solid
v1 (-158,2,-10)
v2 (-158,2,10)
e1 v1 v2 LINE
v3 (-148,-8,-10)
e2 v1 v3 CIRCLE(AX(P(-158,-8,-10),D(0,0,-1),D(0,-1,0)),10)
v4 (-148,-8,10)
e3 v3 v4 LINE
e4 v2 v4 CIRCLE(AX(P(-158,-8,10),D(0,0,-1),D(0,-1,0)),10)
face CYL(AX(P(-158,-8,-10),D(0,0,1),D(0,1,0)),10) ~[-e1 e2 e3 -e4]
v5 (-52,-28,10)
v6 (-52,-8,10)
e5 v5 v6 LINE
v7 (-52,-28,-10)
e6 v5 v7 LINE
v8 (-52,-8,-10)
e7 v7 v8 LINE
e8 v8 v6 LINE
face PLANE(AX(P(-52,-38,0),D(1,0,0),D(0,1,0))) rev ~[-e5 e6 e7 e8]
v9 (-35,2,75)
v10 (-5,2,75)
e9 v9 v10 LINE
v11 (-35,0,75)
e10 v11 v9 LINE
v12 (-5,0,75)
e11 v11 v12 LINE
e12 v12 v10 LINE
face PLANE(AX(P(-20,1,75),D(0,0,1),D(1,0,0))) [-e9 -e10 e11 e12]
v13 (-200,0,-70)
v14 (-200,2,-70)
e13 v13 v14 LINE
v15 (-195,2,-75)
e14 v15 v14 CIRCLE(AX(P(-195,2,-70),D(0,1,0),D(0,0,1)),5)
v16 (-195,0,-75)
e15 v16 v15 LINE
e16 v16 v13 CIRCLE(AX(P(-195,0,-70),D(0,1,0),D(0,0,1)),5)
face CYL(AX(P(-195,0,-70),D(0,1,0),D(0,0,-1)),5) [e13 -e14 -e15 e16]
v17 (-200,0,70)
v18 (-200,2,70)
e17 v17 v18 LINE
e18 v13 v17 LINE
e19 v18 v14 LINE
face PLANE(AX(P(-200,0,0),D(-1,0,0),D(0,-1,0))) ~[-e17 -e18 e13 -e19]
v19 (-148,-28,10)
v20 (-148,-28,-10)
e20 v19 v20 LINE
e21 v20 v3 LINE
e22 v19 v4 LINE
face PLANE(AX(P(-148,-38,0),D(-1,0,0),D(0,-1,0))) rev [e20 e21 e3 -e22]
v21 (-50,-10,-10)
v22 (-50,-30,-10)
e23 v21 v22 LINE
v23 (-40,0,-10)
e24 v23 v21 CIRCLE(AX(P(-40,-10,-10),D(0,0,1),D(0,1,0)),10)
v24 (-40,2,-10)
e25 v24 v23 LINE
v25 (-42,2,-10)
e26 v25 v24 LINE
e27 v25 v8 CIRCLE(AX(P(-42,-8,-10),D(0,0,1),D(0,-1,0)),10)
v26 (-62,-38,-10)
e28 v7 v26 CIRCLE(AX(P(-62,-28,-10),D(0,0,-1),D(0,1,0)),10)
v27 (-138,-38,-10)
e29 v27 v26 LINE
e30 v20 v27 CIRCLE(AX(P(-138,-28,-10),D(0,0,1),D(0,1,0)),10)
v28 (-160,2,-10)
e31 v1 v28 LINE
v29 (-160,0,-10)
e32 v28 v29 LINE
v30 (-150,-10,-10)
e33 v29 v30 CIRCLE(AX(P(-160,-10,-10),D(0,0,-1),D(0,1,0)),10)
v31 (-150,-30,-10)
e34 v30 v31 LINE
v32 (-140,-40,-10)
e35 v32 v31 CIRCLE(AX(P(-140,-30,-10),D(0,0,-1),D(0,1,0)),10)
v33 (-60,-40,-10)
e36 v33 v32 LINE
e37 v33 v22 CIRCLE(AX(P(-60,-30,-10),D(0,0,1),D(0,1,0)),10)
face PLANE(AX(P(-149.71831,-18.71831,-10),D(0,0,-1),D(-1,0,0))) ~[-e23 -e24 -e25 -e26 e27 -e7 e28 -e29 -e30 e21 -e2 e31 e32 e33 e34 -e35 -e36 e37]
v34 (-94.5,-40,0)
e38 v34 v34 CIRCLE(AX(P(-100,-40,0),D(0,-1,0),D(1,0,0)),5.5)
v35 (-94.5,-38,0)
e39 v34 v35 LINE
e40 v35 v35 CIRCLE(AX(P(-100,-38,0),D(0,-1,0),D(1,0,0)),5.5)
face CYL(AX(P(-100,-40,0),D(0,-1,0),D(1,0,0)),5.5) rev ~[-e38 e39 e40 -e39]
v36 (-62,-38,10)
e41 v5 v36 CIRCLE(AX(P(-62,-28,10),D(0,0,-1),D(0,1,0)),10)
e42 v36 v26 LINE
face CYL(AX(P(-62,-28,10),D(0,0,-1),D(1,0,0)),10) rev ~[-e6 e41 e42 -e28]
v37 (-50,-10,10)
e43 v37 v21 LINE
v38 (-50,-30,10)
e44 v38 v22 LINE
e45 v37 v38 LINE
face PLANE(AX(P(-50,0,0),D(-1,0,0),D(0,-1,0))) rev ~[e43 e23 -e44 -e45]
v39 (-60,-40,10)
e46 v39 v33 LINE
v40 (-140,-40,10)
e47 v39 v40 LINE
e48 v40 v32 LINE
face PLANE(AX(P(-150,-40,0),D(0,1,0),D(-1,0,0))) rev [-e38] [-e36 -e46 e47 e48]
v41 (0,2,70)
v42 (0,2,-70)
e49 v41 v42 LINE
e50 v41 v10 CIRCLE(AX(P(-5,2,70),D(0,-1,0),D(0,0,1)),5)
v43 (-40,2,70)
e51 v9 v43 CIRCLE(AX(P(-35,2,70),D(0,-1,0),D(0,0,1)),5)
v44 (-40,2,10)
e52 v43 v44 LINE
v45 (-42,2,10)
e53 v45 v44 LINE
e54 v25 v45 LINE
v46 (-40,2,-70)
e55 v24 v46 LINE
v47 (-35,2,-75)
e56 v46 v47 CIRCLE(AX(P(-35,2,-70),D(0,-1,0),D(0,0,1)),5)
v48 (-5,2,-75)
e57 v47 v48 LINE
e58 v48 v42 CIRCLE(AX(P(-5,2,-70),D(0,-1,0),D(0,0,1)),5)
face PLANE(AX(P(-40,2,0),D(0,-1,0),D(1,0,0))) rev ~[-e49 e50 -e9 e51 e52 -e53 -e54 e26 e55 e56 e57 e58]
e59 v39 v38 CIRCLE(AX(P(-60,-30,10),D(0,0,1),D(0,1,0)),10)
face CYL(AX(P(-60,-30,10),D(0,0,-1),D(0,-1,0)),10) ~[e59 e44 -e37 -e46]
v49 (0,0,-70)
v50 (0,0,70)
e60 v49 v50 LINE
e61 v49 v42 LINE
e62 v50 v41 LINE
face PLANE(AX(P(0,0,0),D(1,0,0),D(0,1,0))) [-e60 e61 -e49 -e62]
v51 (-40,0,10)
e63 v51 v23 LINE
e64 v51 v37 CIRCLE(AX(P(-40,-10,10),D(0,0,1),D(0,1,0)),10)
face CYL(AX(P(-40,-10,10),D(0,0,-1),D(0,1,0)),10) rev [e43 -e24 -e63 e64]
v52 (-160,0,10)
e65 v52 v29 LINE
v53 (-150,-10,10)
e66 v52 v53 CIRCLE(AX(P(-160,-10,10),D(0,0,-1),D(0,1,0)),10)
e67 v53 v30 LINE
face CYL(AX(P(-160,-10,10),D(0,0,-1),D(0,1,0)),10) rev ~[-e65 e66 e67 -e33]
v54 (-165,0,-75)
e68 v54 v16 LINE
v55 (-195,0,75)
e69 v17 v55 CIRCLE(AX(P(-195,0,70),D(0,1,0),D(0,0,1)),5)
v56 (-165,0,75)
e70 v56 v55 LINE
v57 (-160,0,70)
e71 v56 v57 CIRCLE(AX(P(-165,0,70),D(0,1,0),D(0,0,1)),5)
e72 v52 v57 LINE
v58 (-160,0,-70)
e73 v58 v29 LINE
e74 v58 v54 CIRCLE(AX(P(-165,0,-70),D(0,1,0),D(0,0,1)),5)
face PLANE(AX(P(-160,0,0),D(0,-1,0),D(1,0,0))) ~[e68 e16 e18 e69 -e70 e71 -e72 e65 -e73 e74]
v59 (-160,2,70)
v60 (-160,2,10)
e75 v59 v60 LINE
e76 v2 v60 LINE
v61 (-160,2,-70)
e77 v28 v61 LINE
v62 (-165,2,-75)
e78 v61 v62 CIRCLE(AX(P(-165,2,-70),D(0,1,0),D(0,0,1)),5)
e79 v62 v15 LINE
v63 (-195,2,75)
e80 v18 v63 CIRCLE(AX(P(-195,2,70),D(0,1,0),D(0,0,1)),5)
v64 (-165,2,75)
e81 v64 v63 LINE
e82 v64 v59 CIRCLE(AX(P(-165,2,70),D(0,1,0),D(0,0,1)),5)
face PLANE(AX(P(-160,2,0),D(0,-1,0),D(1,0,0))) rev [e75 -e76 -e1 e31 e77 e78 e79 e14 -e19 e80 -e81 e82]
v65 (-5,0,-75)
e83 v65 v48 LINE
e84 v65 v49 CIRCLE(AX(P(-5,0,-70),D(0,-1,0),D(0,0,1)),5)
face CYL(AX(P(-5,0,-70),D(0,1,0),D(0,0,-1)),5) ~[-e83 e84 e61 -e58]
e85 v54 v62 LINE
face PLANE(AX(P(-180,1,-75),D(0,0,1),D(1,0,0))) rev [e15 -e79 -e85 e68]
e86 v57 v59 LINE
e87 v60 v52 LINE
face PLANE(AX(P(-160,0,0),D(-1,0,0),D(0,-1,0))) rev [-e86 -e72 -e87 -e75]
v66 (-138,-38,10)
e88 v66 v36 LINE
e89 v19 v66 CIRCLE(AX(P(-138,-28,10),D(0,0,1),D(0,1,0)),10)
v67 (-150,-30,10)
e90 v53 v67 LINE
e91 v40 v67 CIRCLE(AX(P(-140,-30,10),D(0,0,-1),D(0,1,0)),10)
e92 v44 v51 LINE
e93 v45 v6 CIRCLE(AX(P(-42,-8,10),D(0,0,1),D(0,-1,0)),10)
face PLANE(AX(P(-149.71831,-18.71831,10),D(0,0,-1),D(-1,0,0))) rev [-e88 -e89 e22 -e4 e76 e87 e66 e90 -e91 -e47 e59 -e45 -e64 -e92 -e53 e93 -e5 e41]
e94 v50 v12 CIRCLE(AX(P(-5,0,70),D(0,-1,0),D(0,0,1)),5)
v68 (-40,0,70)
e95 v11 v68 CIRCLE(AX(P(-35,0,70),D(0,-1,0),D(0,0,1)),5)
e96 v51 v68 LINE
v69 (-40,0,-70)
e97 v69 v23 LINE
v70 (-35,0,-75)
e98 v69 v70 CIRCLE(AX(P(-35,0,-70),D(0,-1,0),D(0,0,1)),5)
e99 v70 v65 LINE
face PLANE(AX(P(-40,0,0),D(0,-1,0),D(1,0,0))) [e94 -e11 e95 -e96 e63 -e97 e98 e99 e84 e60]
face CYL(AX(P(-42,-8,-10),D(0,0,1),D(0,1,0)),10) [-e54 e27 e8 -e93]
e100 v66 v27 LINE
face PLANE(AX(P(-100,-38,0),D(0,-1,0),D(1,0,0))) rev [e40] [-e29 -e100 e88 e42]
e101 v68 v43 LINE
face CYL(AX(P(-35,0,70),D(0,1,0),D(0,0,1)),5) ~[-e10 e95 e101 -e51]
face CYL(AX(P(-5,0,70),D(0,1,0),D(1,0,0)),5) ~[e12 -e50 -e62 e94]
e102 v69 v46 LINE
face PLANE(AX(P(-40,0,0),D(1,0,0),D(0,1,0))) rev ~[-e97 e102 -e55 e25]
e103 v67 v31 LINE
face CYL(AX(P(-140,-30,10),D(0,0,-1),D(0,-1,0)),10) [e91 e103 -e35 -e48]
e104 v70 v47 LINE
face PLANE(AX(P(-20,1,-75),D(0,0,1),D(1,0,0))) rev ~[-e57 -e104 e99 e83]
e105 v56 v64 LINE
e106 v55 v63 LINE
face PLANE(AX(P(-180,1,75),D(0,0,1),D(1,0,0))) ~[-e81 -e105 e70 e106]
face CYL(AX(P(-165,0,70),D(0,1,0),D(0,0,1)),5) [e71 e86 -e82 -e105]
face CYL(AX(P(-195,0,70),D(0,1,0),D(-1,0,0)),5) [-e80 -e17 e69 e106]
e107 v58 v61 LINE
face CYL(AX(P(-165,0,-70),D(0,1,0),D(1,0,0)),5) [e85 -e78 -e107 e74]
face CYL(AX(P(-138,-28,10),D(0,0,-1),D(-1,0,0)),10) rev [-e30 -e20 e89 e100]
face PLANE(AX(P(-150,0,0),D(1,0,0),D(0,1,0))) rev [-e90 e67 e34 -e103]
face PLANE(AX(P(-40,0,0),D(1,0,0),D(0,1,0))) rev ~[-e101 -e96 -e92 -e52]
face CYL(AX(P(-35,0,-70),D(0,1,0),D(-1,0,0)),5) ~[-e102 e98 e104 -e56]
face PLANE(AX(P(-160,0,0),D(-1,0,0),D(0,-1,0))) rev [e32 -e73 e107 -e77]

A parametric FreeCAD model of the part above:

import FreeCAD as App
import Part
import Sketcher
from FreeCAD import Vector
Q = App.Units.Quantity


def edges_at(feature, points):
    """Names of the edges that pass closest to the given points."""
    edges = feature.Shape.Edges
    near = lambda p: min(range(len(edges)), key=lambda i: edges[i].distToShape(Part.Vertex(*p))[0])
    return sorted({f"Edge{near(p) + 1}" for p in points})


def add_polygon(sketch, points):
    """Adds a closed chain of lines whose ends are joined by coincident constraints."""
    first, n = sketch.GeometryCount, len(points)
    for a, b in zip(points, points[1:] + points[:1]):
        sketch.addGeometry(Part.LineSegment(App.Vector(*a, 0), App.Vector(*b, 0)), False)
    for i in range(n):
        sketch.addConstraint(Sketcher.Constraint("Coincident", first + i, 2, first + (i + 1) % n, 1))

doc = App.newDocument("Part")
params = doc.addObject("Spreadsheet::Sheet", "Params")
for row, (alias, value) in enumerate([
    ("sketch1_width", "50 mm"),
    ("sketch1_width2", "52 mm"),
    ("sketch1_height", "2 mm"),
    ("sketch1_height2", "40 mm"),
    ("pad1_length", "20 mm"),
    ("fillet_radius", "10 mm"),
    ("sketch2_width", "40 mm"),
    ("sketch2_height", "2 mm"),
    ("pad2_length", "150 mm"),
    ("fillet2_radius", "5 mm"),
    ("sketch3_diameter", "11 mm"),
], start=1):
    params.set(f"A{row}", alias)
    params.set(f"B{row}", "=" + value)
    params.setAlias(f"B{row}", alias)

body = doc.addObject("PartDesign::Body", "Body")

sketch1 = doc.addObject("Sketcher::SketchObject", "Sketch")
body.addObject(sketch1)
sketch1.AttachmentSupport = (doc.XY_Plane, [""])
sketch1.MapMode = "FlatFace"
add_polygon(sketch1, [(-50, 0), (0, 0), (0, 2), (-52, 2), (-52, -38), (-100, -38), (-100, -40), (-50, -40)])
sketch1.addConstraint([
    Sketcher.Constraint("Horizontal", 0),
    Sketcher.Constraint("Vertical", 1),
    Sketcher.Constraint("Horizontal", 2),
    Sketcher.Constraint("Vertical", 3),
    Sketcher.Constraint("Horizontal", 4),
    Sketcher.Constraint("Vertical", 5),
    Sketcher.Constraint("Horizontal", 6),
    Sketcher.Constraint("Vertical", 7),
    Sketcher.Constraint("Coincident", 0, 2, -1, 1),
    Sketcher.Constraint("Equal", 0, 6),
    Sketcher.Constraint("Equal", 1, 5),
    Sketcher.Constraint("DistanceX", 0, 1, 0, 2, Q("50 mm")),
    Sketcher.Constraint("DistanceX", 2, 2, 2, 1, Q("52 mm")),
    Sketcher.Constraint("DistanceY", 1, 1, 1, 2, Q("2 mm")),
    Sketcher.Constraint("DistanceY", 3, 2, 3, 1, Q("40 mm")),
])
sketch1.setExpression("Constraints[19]", "Params.sketch1_width")
sketch1.setExpression("Constraints[20]", "Params.sketch1_width2")
sketch1.setExpression("Constraints[21]", "Params.sketch1_height")
sketch1.setExpression("Constraints[22]", "Params.sketch1_height2")
pad1 = doc.addObject("PartDesign::Pad", "Pad")
body.addObject(pad1)
pad1.Profile = sketch1
pad1.setExpression("Length", "Params.pad1_length")
pad1.Midplane = True
doc.recompute()

fillet = doc.addObject("PartDesign::Fillet", "Fillet")
body.addObject(fillet)
fillet.Base = (pad1, edges_at(pad1, [
    (-50, 0, 0),
    (-50, -40, 0),
    (-52, -38, 0),
    (-52, 2, 0),
]))
fillet.setExpression("Radius", "Params.fillet_radius")

sketch2 = doc.addObject("Sketcher::SketchObject", "Sketch001")
body.addObject(sketch2)
sketch2.AttachmentSupport = (doc.XY_Plane, [""])
sketch2.MapMode = "FlatFace"
add_polygon(sketch2, [(-40, 2), (-40, 0), (0, 0), (0, 2)])
sketch2.addConstraint([
    Sketcher.Constraint("Vertical", 0),
    Sketcher.Constraint("Horizontal", 1),
    Sketcher.Constraint("Vertical", 2),
    Sketcher.Constraint("Horizontal", 3),
    Sketcher.Constraint("Coincident", 1, 2, -1, 1),
    Sketcher.Constraint("DistanceX", 1, 1, 1, 2, Q("40 mm")),
    Sketcher.Constraint("DistanceY", 0, 2, 0, 1, Q("2 mm")),
])
sketch2.setExpression("Constraints[9]", "Params.sketch2_width")
sketch2.setExpression("Constraints[10]", "Params.sketch2_height")
pad2 = doc.addObject("PartDesign::Pad", "Pad001")
body.addObject(pad2)
pad2.Profile = sketch2
pad2.setExpression("Length", "Params.pad2_length")
pad2.Midplane = True
doc.recompute()

fillet2 = doc.addObject("PartDesign::Fillet", "Fillet001")
body.addObject(fillet2)
fillet2.Base = (pad2, edges_at(pad2, [
    (-40, 1, -75),
    (0, 1, -75),
    (-40, 1, 75),
    (0, 1, 75),
]))
fillet2.setExpression("Radius", "Params.fillet2_radius")
body2 = doc.addObject("PartDesign::Body", "Body001")
doc.recompute()

body2.BaseFeature = body
doc.recompute()

mirroring = doc.addObject("Part::Mirroring", "Mirroring")
mirroring.Source = body
mirroring.Base = Vector(-100, -38, 10)
mirroring.Normal = Vector(1, 0, 0)
body3 = doc.addObject("PartDesign::Body", "Body002")
body3.BaseFeature = mirroring
boolean = doc.addObject("PartDesign::Boolean", "Boolean")
body2.addObject(boolean)
boolean.Type = "Fuse"
boolean.addObjects([body3])
doc.recompute()

sketch3 = doc.addObject("Sketcher::SketchObject", "Sketch002")
body2.addObject(sketch3)
sketch3.AttachmentSupport = (doc.getObject("XZ_Plane001"), [""])
sketch3.MapMode = "FlatFace"
sketch3.AttachmentOffset = App.Placement(Vector(0, 0, 40), App.Rotation())
sketch3.addGeometry(Part.Circle(Vector(-100, 0, 0), Vector(0, 0, 1), 6), False)
sketch3.addConstraint([
    Sketcher.Constraint("PointOnObject", 0, 3, -1),
    Sketcher.Constraint("Diameter", 0, Q("11 mm")),
    Sketcher.Constraint("DistanceX", 0, 3, -1, 1, Q("100 mm")),
])
sketch3.setExpression("Constraints[1]", "Params.sketch3_diameter")
pocket1 = doc.addObject("PartDesign::Pocket", "Pocket")
body2.addObject(pocket1)
pocket1.Profile = sketch3
pocket1.Type = "UpToFirst"
mirroring.Visibility = False

doc.recompute()
